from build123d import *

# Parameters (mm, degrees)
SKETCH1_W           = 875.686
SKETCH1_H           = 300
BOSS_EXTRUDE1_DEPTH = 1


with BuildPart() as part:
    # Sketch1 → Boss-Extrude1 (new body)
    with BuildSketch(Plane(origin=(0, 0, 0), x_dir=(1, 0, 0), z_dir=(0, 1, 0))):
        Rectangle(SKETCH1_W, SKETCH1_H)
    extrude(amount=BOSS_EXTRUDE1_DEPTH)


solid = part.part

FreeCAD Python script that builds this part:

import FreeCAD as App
import Part
import Sketcher

V = App.Vector

doc = App.newDocument("Part")
params = doc.addObject("Spreadsheet::Sheet", "Params")
for row, (alias, value) in enumerate([
    ("sketch1_height", "300 mm"),
    ("pad1_length", "1 mm"),
], start=1):
    params.set(f"A{row}", alias)
    params.set(f"B{row}", "=" + value)
    params.setAlias(f"B{row}", alias)

body = doc.addObject("PartDesign::Body", "Body")

# Sketch on XZ plane
sketch1 = body.newObject("Sketcher::SketchObject", "Sketch")
sketch1.AttachmentSupport = (doc.getObject("XZ_Plane"), [""])
sketch1.MapMode = "FlatFace"
sketch1.addGeometry([
    Part.LineSegment(V(-438, -150, 0), V(-438, 150, 0)),
    Part.LineSegment(V(-438, 150, 0), V(438, 150, 0)),
    Part.LineSegment(V(438, 150, 0), V(438, -150, 0)),
    Part.LineSegment(V(438, -150, 0), V(-438, -150, 0)),
], False)
sketch1.addConstraint([
    Sketcher.Constraint("Coincident", 0, 2, 1, 1),
    Sketcher.Constraint("Coincident", 1, 2, 2, 1),
    Sketcher.Constraint("Coincident", 2, 2, 3, 1),
    Sketcher.Constraint("Coincident", 3, 2, 0, 1),
    Sketcher.Constraint("Vertical", 0),
    Sketcher.Constraint("Horizontal", 1),
    Sketcher.Constraint("Vertical", 2),
    Sketcher.Constraint("Horizontal", 3),
    Sketcher.Constraint("Symmetric", 0, 2, 2, 2, -1, 1),
    Sketcher.Constraint("DistanceY", 0, 1, 0, 2, 300.0),
    Sketcher.Constraint("DistanceX", 1, 1, 1, 2, 875.686),
])
sketch1.setExpression("Constraints[9]", "Params.sketch1_height")
pad1 = body.newObject("PartDesign::Pad", "Pad")
pad1.Profile = sketch1
pad1.setExpression("Length", "Params.pad1_length")
pad1.Reversed = True

doc.recompute()
